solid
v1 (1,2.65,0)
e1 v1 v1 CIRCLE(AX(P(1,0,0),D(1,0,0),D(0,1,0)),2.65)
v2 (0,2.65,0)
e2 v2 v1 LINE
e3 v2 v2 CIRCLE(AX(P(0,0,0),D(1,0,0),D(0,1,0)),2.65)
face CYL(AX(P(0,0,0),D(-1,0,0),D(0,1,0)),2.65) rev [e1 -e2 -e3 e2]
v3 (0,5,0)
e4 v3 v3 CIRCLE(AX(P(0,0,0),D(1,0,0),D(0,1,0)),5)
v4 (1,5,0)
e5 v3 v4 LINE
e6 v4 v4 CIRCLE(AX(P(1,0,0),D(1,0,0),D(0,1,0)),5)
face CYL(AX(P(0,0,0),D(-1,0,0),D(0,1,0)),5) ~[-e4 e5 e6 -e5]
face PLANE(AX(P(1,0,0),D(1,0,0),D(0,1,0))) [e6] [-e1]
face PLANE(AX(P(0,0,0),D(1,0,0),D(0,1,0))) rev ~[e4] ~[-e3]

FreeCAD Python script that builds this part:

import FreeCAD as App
import Part
import Sketcher

doc = App.newDocument("Part")
params = doc.addObject("Spreadsheet::Sheet", "Params")
for row, (alias, value) in enumerate([
    ("sketch1_diameter", "10 mm"),
    ("sketch1_diameter2", "5.3 mm"),
    ("pad1_length", "1 mm"),
], start=1):
    params.set(f"A{row}", alias)
    params.set(f"B{row}", "=" + value)
    params.setAlias(f"B{row}", alias)

body = doc.addObject("PartDesign::Body", "Body")

sketch1 = body.newObject("Sketcher::SketchObject", "Sketch")
sketch1.AttachmentSupport = (doc.getObject("YZ_Plane"), [""])
sketch1.MapMode = "FlatFace"
sketch1.addGeometry(Part.Circle(App.Vector(0, 0, 0), App.Vector(0, 0, 1), 5), False)
sketch1.addGeometry(Part.Circle(App.Vector(0, 0, 0), App.Vector(0, 0, 1), 2.6), False)
sketch1.addConstraint(Sketcher.Constraint("Coincident", 0, 3, -1, 1))
sketch1.addConstraint(Sketcher.Constraint("Coincident", 1, 3, -1, 1))
sketch1.addConstraint(Sketcher.Constraint("Diameter", 0, 10.0))
sketch1.addConstraint(Sketcher.Constraint("Diameter", 1, 5.3))
sketch1.setExpression("Constraints[2]", "Params.sketch1_diameter")
sketch1.setExpression("Constraints[3]", "Params.sketch1_diameter2")
pad1 = body.newObject("PartDesign::Pad", "Pad")
pad1.Profile = sketch1
pad1.setExpression("Length", "Params.pad1_length")

doc.recompute()
